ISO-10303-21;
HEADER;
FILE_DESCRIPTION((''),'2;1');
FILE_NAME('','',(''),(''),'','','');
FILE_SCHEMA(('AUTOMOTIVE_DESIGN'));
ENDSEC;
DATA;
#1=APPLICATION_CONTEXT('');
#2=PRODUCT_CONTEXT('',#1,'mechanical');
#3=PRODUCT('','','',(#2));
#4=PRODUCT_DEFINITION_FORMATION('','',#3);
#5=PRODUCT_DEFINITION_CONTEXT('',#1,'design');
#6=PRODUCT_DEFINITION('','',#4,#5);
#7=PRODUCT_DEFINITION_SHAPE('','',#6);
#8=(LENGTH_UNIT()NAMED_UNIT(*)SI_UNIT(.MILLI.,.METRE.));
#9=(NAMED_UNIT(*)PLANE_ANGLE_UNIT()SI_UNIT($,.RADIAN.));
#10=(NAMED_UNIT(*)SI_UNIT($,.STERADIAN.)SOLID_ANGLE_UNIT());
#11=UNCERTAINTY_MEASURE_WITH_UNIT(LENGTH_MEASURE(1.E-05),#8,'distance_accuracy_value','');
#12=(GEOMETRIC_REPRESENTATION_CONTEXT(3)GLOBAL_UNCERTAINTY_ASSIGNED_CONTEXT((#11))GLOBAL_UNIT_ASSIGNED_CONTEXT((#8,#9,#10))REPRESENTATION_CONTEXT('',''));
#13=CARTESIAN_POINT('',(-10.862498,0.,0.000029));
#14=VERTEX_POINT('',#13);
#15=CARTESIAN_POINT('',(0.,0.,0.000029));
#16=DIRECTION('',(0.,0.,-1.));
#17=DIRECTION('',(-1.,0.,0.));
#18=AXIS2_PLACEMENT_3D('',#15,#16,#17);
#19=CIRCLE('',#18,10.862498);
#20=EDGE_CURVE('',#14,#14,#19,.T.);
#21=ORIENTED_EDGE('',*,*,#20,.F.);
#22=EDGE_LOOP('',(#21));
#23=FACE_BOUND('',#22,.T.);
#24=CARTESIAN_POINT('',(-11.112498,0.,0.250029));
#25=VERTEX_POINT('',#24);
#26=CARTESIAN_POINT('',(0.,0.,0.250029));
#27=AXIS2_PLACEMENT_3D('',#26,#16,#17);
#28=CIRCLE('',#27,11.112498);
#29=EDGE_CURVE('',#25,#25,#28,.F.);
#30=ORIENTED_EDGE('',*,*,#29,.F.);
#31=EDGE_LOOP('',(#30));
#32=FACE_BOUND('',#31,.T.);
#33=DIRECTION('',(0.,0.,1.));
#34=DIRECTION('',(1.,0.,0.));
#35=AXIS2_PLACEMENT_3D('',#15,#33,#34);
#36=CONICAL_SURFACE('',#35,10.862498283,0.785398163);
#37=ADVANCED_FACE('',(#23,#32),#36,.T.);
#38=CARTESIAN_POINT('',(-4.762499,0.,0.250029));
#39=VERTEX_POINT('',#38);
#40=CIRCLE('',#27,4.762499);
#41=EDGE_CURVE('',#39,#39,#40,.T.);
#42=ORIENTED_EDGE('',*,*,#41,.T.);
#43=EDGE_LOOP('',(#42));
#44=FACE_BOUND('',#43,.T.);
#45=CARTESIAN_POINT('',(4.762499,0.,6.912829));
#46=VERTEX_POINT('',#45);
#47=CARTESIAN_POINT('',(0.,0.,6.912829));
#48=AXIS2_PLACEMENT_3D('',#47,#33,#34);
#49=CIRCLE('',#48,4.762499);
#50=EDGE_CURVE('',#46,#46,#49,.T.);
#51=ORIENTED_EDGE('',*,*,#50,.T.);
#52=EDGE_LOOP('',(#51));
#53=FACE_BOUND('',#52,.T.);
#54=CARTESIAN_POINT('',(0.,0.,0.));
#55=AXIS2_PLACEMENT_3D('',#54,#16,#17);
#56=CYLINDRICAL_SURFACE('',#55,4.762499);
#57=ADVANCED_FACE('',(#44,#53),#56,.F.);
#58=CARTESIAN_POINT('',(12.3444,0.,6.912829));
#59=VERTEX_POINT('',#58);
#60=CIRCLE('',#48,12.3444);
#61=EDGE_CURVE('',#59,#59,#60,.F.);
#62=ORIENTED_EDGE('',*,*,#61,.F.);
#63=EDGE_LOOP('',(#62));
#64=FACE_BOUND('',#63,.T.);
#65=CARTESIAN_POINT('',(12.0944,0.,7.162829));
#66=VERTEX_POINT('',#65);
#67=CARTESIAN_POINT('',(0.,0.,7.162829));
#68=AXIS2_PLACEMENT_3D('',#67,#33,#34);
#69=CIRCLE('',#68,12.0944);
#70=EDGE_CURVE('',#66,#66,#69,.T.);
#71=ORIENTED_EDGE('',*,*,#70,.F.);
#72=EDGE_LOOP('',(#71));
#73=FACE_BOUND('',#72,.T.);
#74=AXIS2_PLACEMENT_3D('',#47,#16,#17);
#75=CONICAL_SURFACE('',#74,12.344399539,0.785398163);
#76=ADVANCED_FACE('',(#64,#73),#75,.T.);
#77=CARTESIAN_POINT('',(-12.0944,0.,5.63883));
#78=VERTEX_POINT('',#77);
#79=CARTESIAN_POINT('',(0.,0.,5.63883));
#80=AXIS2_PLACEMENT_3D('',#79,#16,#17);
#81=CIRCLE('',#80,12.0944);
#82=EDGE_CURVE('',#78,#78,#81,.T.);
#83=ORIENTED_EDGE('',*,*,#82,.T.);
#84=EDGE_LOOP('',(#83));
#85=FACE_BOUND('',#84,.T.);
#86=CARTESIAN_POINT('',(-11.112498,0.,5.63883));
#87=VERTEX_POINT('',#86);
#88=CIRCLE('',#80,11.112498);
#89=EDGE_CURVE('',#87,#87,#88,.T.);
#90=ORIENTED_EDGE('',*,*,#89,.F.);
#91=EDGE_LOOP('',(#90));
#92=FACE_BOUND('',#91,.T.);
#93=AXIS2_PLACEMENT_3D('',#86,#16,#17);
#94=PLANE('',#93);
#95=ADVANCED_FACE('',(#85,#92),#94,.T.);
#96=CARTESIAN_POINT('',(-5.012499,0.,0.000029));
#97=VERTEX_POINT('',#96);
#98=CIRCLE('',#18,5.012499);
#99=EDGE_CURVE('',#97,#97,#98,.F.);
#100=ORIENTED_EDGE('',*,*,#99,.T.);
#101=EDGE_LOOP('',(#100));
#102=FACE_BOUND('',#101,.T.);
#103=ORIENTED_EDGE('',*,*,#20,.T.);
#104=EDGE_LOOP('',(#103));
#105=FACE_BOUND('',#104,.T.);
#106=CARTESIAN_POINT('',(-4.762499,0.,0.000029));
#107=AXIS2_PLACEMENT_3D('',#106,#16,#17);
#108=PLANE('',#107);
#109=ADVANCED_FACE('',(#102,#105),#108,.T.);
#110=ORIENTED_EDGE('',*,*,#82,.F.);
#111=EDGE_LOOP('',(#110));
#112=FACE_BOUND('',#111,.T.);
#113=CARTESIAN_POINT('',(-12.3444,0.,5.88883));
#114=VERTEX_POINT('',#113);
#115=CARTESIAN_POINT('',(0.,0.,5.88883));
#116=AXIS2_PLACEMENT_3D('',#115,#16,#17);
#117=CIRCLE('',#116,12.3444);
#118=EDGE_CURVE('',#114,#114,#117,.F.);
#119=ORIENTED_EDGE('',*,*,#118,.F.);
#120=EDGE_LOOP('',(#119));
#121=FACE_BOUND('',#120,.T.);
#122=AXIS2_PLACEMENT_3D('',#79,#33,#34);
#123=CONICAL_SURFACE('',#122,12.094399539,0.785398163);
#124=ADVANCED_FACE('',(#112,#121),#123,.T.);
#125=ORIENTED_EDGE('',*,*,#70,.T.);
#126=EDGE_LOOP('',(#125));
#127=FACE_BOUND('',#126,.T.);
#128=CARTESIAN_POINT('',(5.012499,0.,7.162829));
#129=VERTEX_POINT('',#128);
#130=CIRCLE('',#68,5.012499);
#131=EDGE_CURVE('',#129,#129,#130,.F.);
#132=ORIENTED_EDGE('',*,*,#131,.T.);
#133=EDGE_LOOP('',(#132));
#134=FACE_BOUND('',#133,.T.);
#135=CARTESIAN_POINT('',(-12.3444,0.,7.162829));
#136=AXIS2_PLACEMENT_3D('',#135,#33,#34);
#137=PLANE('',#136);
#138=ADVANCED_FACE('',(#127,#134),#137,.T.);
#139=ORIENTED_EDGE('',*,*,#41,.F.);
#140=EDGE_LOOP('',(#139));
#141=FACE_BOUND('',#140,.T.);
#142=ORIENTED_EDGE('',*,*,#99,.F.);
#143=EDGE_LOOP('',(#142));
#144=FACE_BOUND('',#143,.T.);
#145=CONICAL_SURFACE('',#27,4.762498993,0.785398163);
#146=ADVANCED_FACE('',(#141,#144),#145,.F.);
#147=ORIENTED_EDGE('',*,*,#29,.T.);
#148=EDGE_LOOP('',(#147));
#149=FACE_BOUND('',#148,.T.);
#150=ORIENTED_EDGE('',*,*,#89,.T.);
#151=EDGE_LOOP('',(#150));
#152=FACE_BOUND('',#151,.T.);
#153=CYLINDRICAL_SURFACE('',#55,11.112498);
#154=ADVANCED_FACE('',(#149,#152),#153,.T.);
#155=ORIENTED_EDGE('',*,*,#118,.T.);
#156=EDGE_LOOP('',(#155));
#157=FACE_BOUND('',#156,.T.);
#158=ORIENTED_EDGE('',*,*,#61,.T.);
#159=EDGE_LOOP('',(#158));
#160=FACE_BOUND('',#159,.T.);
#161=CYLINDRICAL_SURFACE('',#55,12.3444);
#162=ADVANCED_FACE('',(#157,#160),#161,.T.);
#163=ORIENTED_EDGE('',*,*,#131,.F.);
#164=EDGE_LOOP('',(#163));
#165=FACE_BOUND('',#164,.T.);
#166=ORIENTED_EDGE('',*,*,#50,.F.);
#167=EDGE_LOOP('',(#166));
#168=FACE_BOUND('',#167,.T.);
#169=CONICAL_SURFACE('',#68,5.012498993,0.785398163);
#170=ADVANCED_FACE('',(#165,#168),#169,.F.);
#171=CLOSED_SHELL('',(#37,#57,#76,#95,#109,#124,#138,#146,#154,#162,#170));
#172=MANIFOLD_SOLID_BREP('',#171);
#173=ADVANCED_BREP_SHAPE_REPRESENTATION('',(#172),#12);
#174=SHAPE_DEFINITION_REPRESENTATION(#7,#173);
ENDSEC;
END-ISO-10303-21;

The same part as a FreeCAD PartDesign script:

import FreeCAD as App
import Part
import Sketcher

V = App.Vector
Q = App.Units.Quantity


def edges_at(feature, points):
    """Names of the edges that pass closest to the given points."""
    edges = feature.Shape.Edges
    near = lambda p: min(range(len(edges)), key=lambda i: edges[i].distToShape(Part.Vertex(*p))[0])
    return sorted({f"Edge{near(p) + 1}" for p in points})


def add_polygon(sketch, points):
    """Adds a closed chain of lines whose ends are joined by coincident constraints."""
    first, n = sketch.GeometryCount, len(points)
    for a, b in zip(points, points[1:] + points[:1]):
        sketch.addGeometry(Part.LineSegment(App.Vector(*a, 0), App.Vector(*b, 0)), False)
    for i in range(n):
        sketch.addConstraint(Sketcher.Constraint("Coincident", first + i, 2, first + (i + 1) % n, 1))

doc = App.newDocument("Part")
body = doc.addObject("PartDesign::Body", "Body")

# Sketch on XZ plane
sketch1 = body.newObject("Sketcher::SketchObject", "Sketch")
sketch1.AttachmentSupport = (doc.getObject("XZ_Plane"), [""])
sketch1.MapMode = "FlatFace"
add_polygon(sketch1, [(-4.762499, 0.000029), (-11.112498, 0.000029), (-11.112498, 5.63883), (-12.3444, 5.63883), (-12.3444, 7.162829), (-4.762499, 7.162829)])  # lines 0-5
sketch1.addConstraint(Sketcher.Constraint("Horizontal", 0))
sketch1.addConstraint(Sketcher.Constraint("Vertical", 1))
sketch1.addConstraint(Sketcher.Constraint("Horizontal", 2))
sketch1.addConstraint(Sketcher.Constraint("Vertical", 3))
sketch1.addConstraint(Sketcher.Constraint("Horizontal", 4))
sketch1.addConstraint(Sketcher.Constraint("Vertical", 5))
sketch1.addConstraint(Sketcher.Constraint("DistanceX", 0, 2, 0, 1, Q("0.25 in")))
sketch1.addConstraint(Sketcher.Constraint("DistanceY", 3, 1, 3, 2, Q("0.06 in")))
sketch1.addConstraint(Sketcher.Constraint("DistanceY", 1, 1, 1, 2, Q("0.222 in")))
sketch1.addConstraint(Sketcher.Constraint("DistanceX", 2, 2, 2, 1, Q("0.0485 in")))
sketch1.addConstraint(Sketcher.Constraint("DistanceX", 0, 2, -1, 1, Q("0.4374999 in")))
sketch1.addConstraint(Sketcher.Constraint("DistanceY", -1, 1, 1, 2, 5.63883))
revolution = body.newObject("PartDesign::Revolution", "Revolution")
revolution.Profile = sketch1
revolution.ReferenceAxis = (sketch1, ["V_Axis"])
revolution.Angle = 360
doc.recompute()

chamfer = body.newObject("PartDesign::Chamfer", "Chamfer")
chamfer.Base = (revolution, edges_at(revolution, [
    (11.112, 0, 0),
    (4.762, 0, 0),
    (4.762, 0, 7.163),
    (12.344, 0, 7.163),
    (12.344, 0, 5.639),
]))
chamfer.Size = 0.25

doc.recompute()
